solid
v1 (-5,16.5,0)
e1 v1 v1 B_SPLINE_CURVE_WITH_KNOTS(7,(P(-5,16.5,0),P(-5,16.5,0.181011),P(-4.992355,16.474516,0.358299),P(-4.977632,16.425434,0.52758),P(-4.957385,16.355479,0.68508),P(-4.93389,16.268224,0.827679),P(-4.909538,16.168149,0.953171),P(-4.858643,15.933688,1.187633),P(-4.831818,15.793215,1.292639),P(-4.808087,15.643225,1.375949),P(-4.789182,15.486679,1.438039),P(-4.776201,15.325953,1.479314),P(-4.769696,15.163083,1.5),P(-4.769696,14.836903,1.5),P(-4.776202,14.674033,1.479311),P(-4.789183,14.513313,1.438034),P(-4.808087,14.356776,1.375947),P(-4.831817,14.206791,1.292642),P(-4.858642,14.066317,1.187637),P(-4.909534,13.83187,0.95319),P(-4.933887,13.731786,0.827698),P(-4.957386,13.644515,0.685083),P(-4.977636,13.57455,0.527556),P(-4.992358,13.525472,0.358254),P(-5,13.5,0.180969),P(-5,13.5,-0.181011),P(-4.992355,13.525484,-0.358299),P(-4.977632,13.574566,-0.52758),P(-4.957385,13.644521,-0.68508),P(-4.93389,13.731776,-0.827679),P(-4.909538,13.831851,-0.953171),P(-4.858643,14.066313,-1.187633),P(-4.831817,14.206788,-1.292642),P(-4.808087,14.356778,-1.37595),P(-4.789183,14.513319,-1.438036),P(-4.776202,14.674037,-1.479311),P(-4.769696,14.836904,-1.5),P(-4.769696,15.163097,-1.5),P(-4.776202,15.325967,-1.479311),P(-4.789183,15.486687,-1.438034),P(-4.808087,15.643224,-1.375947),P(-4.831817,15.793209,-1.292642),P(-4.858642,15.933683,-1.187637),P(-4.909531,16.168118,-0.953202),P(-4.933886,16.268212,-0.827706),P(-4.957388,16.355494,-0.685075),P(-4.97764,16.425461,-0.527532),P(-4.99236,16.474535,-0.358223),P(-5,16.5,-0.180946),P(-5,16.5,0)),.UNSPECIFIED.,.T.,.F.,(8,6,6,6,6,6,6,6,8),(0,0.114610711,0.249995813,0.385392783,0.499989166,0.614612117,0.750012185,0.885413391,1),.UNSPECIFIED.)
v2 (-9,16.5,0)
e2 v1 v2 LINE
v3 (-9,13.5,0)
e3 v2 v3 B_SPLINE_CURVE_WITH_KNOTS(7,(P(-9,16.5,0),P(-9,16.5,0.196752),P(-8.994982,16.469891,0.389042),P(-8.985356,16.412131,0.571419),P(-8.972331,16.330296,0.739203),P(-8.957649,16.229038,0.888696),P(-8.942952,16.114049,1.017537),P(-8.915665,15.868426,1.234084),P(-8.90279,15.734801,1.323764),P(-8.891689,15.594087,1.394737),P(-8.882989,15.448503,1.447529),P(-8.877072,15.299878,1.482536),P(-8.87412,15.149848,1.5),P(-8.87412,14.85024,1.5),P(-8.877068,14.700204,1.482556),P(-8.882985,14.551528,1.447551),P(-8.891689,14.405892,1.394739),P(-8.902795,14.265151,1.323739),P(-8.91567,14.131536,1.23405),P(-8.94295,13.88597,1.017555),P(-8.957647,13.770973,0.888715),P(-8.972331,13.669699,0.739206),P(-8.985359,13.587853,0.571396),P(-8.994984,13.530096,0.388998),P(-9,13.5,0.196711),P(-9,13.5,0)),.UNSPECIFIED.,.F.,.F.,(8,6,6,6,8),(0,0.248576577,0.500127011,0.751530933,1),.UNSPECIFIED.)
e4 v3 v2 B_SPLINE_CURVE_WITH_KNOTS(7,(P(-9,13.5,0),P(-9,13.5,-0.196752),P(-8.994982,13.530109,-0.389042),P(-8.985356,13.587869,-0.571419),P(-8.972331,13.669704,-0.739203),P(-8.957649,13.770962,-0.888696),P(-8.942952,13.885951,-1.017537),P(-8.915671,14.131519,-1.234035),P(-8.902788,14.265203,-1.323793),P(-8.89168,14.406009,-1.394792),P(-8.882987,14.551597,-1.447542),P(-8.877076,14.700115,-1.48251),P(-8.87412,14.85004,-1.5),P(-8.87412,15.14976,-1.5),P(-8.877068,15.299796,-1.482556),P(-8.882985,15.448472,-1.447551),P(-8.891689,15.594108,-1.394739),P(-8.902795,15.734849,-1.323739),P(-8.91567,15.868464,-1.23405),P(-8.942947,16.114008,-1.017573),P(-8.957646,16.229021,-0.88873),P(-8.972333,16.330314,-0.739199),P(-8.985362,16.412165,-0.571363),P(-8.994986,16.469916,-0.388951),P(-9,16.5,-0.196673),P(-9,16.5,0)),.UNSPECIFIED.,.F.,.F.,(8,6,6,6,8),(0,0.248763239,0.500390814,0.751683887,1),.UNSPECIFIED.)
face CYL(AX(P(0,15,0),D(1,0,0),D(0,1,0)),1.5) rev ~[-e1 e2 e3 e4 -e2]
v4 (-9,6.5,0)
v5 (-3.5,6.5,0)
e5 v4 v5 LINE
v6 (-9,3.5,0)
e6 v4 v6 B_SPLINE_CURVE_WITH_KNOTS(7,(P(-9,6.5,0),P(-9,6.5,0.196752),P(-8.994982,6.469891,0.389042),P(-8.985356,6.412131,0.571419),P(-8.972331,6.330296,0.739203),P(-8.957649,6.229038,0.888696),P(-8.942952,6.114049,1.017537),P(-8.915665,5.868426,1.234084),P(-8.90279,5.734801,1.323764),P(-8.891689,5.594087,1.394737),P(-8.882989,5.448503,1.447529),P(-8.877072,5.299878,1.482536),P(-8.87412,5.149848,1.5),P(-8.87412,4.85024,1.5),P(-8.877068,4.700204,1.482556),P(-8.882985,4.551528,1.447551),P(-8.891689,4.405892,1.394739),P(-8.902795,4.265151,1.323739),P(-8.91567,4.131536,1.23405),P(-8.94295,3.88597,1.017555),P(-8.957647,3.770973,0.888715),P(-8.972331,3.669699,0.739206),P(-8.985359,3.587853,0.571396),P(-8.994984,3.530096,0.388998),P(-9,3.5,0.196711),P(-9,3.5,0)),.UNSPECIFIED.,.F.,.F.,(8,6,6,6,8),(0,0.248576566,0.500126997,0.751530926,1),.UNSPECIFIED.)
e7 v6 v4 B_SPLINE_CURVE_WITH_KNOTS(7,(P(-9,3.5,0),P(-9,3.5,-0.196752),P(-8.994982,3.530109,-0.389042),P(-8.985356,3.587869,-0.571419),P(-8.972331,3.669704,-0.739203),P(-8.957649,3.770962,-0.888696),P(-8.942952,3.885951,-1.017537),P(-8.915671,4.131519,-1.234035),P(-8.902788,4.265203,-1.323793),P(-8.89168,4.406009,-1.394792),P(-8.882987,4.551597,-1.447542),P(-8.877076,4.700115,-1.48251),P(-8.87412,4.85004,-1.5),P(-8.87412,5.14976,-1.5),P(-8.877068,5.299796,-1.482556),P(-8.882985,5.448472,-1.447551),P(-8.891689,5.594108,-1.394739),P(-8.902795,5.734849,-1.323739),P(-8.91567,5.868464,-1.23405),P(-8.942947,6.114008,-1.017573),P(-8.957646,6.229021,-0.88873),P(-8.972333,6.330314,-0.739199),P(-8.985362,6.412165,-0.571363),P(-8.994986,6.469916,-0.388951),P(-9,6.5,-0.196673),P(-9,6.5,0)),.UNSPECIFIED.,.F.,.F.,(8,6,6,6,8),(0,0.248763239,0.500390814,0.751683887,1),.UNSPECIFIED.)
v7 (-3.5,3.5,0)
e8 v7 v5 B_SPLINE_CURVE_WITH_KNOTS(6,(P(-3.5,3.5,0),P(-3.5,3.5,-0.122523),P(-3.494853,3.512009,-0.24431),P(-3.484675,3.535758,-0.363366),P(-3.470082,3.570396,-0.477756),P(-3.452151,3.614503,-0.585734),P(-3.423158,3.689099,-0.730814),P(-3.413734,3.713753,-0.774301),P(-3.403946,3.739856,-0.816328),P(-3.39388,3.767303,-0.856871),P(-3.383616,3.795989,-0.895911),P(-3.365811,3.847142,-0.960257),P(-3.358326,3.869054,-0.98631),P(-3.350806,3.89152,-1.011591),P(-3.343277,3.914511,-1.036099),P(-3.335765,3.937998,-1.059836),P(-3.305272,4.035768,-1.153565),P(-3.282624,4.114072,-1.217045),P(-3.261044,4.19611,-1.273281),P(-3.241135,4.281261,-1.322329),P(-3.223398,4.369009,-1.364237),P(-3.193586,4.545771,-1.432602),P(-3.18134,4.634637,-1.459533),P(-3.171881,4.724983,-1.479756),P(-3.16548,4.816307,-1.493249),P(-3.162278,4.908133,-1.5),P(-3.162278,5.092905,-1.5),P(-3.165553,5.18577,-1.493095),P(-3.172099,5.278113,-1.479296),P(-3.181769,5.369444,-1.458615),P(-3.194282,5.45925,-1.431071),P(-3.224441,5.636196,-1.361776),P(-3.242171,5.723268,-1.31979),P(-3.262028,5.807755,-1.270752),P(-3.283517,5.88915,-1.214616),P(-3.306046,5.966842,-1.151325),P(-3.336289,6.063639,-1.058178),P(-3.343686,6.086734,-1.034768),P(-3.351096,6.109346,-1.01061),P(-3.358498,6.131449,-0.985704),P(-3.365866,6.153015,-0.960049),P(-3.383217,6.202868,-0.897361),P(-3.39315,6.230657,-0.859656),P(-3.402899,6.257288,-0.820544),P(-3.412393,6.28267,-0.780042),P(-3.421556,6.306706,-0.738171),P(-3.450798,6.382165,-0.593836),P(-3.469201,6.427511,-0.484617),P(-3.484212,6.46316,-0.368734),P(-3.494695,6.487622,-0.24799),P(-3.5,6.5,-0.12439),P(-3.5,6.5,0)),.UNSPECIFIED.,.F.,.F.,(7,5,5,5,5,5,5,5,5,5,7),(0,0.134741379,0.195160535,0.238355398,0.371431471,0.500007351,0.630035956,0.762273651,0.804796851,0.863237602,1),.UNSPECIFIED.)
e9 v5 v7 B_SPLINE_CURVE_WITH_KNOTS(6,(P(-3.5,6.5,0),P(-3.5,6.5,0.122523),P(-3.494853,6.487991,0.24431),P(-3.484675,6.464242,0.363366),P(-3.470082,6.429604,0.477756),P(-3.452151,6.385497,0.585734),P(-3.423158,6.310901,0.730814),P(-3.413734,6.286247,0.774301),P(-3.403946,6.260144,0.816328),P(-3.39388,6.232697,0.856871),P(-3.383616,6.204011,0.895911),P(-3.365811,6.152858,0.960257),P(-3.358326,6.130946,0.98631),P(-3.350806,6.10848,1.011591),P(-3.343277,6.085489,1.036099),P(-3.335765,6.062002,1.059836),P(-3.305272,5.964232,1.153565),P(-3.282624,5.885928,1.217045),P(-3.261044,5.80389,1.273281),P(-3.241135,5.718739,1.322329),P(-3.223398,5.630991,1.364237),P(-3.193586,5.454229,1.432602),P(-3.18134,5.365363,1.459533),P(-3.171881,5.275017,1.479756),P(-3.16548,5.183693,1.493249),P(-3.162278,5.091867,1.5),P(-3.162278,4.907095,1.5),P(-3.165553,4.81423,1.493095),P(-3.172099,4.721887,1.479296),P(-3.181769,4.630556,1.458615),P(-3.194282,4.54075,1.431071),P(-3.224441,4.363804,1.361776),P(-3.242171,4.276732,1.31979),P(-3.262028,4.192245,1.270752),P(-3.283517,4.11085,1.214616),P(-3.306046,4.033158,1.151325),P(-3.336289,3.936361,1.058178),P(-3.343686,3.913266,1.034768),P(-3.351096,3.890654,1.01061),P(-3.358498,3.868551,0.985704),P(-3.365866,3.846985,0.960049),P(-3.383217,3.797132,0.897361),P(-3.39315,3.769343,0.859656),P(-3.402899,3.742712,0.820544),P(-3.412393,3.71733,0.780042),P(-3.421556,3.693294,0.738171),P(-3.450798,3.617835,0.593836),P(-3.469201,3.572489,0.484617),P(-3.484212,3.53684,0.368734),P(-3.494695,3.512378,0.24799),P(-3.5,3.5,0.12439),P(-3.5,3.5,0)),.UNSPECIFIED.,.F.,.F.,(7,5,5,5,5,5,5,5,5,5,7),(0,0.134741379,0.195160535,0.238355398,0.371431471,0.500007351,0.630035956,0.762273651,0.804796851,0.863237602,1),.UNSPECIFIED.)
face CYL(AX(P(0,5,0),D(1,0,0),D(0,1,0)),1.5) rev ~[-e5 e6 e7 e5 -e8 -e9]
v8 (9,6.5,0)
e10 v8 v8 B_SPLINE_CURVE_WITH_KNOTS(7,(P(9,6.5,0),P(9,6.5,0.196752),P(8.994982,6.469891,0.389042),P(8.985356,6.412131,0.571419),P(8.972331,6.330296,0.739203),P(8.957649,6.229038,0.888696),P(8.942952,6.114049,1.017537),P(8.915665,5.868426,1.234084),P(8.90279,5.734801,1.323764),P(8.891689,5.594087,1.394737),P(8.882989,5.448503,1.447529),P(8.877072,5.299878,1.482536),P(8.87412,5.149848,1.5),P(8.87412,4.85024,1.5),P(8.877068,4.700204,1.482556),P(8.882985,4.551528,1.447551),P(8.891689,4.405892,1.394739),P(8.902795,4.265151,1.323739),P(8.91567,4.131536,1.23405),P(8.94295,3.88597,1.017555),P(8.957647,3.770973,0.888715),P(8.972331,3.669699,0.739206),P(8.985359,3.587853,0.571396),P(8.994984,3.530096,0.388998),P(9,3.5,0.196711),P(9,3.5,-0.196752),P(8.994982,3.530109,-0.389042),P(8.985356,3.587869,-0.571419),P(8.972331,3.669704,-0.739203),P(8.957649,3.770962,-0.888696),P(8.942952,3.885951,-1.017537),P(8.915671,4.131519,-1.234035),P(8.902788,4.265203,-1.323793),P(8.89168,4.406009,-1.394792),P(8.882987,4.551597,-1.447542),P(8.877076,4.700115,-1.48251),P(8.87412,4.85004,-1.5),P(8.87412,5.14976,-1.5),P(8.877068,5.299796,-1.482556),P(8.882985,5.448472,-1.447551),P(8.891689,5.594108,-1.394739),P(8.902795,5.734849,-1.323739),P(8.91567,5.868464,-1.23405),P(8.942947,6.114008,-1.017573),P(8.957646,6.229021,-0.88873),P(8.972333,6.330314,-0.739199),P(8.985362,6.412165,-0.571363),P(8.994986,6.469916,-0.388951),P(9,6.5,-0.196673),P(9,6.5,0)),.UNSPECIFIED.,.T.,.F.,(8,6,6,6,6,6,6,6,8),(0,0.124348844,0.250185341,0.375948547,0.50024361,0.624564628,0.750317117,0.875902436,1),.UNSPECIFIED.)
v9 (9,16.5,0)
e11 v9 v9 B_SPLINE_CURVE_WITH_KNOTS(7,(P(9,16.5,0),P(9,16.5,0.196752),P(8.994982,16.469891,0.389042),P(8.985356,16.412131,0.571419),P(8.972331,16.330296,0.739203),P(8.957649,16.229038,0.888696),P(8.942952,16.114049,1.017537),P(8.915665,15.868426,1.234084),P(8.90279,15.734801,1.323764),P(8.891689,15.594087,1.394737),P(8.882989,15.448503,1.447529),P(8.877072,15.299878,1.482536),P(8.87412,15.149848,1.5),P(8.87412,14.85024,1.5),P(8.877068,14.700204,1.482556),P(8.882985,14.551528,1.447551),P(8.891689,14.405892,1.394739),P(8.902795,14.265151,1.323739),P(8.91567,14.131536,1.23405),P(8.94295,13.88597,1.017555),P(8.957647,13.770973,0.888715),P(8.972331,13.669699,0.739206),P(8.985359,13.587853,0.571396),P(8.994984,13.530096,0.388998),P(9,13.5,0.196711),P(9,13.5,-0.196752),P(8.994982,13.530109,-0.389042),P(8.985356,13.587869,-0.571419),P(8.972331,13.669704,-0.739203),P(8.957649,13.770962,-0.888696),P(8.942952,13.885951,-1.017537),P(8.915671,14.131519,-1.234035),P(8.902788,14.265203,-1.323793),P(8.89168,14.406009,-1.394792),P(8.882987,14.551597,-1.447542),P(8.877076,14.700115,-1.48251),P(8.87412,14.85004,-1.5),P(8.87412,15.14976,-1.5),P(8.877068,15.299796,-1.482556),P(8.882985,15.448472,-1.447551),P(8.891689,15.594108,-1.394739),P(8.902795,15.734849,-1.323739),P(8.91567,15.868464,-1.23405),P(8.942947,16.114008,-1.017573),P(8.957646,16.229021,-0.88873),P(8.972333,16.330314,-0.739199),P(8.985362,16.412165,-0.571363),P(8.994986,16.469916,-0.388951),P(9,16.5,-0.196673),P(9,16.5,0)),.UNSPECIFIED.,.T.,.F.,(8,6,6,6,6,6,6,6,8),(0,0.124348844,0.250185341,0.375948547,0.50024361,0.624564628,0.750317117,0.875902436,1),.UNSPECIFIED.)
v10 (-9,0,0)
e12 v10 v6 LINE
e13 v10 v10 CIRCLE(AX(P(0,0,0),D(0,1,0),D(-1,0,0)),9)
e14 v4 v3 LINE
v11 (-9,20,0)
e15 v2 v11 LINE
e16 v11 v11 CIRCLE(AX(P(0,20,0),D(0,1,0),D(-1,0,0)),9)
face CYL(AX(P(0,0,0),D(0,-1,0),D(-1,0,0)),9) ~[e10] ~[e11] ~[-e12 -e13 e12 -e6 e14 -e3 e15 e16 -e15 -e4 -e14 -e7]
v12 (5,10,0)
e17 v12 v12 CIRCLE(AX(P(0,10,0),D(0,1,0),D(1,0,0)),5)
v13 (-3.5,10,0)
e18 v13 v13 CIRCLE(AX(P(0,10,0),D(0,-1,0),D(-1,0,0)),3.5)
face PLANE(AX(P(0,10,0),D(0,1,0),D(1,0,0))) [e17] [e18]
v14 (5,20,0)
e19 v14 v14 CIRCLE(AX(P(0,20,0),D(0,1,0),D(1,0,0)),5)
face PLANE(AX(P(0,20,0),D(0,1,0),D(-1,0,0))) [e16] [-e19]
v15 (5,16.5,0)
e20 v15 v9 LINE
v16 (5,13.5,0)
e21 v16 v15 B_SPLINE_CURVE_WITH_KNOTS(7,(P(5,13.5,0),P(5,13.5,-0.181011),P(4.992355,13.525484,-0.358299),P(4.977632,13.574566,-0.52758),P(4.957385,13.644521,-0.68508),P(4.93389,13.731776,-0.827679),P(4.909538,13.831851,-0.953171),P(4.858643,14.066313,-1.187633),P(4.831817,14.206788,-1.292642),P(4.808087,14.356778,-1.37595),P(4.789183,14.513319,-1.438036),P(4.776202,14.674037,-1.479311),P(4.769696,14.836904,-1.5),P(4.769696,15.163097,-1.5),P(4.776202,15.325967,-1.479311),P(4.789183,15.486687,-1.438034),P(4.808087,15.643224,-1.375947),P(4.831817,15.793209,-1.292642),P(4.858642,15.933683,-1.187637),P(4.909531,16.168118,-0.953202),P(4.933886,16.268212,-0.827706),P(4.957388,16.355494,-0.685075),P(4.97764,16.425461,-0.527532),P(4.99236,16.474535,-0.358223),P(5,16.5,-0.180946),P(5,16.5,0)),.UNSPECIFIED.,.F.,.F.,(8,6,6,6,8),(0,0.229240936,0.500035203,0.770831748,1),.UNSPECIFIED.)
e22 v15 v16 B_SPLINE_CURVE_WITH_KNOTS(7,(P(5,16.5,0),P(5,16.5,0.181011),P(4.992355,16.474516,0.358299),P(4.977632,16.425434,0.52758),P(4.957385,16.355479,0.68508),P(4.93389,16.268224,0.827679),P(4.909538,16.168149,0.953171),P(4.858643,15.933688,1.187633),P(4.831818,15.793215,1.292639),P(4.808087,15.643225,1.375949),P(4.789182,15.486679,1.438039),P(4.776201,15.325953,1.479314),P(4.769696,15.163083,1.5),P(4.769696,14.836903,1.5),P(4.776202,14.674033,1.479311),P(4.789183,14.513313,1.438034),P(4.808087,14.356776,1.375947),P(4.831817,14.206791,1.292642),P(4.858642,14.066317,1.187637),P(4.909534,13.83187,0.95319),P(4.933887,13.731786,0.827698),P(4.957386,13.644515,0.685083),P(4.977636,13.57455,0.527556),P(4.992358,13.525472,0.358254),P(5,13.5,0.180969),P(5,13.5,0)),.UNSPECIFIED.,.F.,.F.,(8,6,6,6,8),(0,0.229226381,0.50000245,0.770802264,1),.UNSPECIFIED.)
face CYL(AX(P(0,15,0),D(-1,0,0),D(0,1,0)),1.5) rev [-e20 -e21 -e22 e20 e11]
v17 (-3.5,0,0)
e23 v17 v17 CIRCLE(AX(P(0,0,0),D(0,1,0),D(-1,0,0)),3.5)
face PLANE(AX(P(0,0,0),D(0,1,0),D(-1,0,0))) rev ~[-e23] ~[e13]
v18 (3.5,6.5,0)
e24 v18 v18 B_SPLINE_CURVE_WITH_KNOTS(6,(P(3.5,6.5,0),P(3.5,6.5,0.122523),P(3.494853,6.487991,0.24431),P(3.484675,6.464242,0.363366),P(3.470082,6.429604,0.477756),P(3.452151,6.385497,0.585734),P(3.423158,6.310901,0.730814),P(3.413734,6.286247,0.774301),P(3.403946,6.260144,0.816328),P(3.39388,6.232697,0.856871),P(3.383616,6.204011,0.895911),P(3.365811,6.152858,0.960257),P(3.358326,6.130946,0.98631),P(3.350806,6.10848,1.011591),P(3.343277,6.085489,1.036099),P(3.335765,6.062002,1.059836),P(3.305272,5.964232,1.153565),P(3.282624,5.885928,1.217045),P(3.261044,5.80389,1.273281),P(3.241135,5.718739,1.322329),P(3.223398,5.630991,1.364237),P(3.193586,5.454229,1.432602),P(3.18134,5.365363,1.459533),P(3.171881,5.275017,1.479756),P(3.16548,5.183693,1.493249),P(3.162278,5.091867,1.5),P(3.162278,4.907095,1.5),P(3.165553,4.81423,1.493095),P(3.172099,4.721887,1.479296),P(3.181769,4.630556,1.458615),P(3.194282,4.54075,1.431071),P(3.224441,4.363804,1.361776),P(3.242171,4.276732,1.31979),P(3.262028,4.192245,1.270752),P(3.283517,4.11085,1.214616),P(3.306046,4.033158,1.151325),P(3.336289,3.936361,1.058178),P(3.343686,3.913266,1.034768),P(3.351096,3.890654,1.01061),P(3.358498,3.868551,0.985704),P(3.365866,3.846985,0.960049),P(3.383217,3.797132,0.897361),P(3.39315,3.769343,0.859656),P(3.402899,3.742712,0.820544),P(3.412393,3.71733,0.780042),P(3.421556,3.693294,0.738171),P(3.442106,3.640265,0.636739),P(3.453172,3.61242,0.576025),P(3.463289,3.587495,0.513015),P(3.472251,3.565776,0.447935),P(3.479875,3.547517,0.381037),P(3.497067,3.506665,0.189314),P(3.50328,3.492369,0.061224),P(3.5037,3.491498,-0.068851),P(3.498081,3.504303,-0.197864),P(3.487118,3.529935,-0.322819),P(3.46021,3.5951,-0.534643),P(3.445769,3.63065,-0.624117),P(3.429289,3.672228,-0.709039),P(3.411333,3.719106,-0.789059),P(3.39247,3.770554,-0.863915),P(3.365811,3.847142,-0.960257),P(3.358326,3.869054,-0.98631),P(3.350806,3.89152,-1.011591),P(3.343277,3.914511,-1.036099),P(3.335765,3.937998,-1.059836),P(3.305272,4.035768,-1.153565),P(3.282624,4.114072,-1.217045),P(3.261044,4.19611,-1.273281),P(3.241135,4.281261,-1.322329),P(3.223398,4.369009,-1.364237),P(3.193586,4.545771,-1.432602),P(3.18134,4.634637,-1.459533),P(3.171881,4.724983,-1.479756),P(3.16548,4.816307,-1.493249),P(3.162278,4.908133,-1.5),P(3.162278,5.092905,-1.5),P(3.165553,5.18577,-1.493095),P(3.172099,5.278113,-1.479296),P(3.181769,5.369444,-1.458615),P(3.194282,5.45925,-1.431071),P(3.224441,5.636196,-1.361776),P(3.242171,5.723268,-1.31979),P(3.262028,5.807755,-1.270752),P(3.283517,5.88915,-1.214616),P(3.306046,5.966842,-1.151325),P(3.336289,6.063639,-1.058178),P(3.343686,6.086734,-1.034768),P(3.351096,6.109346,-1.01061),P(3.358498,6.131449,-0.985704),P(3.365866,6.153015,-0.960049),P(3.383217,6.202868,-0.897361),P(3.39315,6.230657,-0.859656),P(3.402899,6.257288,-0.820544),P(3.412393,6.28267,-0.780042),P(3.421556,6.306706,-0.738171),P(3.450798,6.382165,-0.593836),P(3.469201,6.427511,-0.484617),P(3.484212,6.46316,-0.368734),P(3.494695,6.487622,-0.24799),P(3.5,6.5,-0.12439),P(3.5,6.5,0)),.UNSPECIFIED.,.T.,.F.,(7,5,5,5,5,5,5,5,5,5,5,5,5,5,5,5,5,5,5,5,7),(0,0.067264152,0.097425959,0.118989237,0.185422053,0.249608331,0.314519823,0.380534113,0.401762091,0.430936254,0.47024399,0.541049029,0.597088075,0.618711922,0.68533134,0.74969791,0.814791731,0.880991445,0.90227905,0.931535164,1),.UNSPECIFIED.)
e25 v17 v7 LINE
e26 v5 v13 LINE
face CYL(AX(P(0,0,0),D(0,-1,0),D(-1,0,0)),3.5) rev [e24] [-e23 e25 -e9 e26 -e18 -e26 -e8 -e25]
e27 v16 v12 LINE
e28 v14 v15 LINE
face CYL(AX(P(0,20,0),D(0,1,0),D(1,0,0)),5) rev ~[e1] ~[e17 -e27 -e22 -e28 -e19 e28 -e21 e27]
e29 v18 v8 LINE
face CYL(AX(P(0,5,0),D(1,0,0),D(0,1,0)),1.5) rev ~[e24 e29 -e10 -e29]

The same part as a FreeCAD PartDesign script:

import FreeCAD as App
import Part
import Sketcher
from FreeCAD import Vector
Q = App.Units.Quantity

doc = App.newDocument("Part")
body = doc.addObject("PartDesign::Body", "Body")

sketch1 = body.newObject("Sketcher::SketchObject", "Sketch")
sketch1.AttachmentSupport = (doc.getObject("XZ_Plane"), [""])
sketch1.MapMode = "FlatFace"
sketch1.addGeometry([
    Part.Circle(Vector(0, 0, 0), Vector(0, 0, 1), 9),
    Part.Circle(Vector(0, 0, 0), Vector(0, 0, 1), 3.5),
], False)
sketch1.addConstraint([
    Sketcher.Constraint("Coincident", 0, 3, -1, 1),
    Sketcher.Constraint("Coincident", 1, 3, -1, 1),
    Sketcher.Constraint("Diameter", 0, Q("18 mm")),
    Sketcher.Constraint("Diameter", 1, Q("7 mm")),
])
pad1 = body.newObject("PartDesign::Pad", "Pad")
pad1.Profile = sketch1
pad1.Length = 20
pad1.Reversed = True

sketch2 = body.newObject("Sketcher::SketchObject", "Sketch001")
sketch2.AttachmentSupport = (doc.getObject("XZ_Plane"), [""])
sketch2.MapMode = "FlatFace"
sketch2.AttachmentOffset = App.Placement(Vector(0, 0, -20), App.Rotation())
sketch2.addGeometry(Part.Circle(Vector(0, 0, 0), Vector(0, 0, 1), 5), False)
sketch2.addConstraint([
    Sketcher.Constraint("Coincident", 0, 3, -1, 1),
    Sketcher.Constraint("Diameter", 0, Q("10 mm")),
])
pocket1 = body.newObject("PartDesign::Pocket", "Pocket")
pocket1.Profile = sketch2
pocket1.Length = 10
pocket1.Reversed = True

sketch3 = body.newObject("Sketcher::SketchObject", "Sketch002")
sketch3.AttachmentSupport = (doc.getObject("YZ_Plane"), [""])
sketch3.MapMode = "FlatFace"
sketch3.addGeometry([
    Part.Circle(Vector(15, 0, 0), Vector(0, 0, 1), 1.5),
    Part.Circle(Vector(5, 0, 0), Vector(0, 0, 1), 1.5),
], False)
sketch3.addConstraint([
    Sketcher.Constraint("Equal", 0, 1),
    Sketcher.Constraint("PointOnObject", 0, 3, -1),
    Sketcher.Constraint("PointOnObject", 1, 3, -1),
    Sketcher.Constraint("Diameter", 0, Q("3 mm")),
    Sketcher.Constraint("DistanceX", -1, 1, 1, 3, Q("5 mm")),
    Sketcher.Constraint("DistanceX", -1, 1, 0, 3, Q("15 mm")),
])
pocket2 = body.newObject("PartDesign::Pocket", "Pocket001")
pocket2.Profile = sketch3
pocket2.Length = 27.5
pocket2.Midplane = True

doc.recompute()
